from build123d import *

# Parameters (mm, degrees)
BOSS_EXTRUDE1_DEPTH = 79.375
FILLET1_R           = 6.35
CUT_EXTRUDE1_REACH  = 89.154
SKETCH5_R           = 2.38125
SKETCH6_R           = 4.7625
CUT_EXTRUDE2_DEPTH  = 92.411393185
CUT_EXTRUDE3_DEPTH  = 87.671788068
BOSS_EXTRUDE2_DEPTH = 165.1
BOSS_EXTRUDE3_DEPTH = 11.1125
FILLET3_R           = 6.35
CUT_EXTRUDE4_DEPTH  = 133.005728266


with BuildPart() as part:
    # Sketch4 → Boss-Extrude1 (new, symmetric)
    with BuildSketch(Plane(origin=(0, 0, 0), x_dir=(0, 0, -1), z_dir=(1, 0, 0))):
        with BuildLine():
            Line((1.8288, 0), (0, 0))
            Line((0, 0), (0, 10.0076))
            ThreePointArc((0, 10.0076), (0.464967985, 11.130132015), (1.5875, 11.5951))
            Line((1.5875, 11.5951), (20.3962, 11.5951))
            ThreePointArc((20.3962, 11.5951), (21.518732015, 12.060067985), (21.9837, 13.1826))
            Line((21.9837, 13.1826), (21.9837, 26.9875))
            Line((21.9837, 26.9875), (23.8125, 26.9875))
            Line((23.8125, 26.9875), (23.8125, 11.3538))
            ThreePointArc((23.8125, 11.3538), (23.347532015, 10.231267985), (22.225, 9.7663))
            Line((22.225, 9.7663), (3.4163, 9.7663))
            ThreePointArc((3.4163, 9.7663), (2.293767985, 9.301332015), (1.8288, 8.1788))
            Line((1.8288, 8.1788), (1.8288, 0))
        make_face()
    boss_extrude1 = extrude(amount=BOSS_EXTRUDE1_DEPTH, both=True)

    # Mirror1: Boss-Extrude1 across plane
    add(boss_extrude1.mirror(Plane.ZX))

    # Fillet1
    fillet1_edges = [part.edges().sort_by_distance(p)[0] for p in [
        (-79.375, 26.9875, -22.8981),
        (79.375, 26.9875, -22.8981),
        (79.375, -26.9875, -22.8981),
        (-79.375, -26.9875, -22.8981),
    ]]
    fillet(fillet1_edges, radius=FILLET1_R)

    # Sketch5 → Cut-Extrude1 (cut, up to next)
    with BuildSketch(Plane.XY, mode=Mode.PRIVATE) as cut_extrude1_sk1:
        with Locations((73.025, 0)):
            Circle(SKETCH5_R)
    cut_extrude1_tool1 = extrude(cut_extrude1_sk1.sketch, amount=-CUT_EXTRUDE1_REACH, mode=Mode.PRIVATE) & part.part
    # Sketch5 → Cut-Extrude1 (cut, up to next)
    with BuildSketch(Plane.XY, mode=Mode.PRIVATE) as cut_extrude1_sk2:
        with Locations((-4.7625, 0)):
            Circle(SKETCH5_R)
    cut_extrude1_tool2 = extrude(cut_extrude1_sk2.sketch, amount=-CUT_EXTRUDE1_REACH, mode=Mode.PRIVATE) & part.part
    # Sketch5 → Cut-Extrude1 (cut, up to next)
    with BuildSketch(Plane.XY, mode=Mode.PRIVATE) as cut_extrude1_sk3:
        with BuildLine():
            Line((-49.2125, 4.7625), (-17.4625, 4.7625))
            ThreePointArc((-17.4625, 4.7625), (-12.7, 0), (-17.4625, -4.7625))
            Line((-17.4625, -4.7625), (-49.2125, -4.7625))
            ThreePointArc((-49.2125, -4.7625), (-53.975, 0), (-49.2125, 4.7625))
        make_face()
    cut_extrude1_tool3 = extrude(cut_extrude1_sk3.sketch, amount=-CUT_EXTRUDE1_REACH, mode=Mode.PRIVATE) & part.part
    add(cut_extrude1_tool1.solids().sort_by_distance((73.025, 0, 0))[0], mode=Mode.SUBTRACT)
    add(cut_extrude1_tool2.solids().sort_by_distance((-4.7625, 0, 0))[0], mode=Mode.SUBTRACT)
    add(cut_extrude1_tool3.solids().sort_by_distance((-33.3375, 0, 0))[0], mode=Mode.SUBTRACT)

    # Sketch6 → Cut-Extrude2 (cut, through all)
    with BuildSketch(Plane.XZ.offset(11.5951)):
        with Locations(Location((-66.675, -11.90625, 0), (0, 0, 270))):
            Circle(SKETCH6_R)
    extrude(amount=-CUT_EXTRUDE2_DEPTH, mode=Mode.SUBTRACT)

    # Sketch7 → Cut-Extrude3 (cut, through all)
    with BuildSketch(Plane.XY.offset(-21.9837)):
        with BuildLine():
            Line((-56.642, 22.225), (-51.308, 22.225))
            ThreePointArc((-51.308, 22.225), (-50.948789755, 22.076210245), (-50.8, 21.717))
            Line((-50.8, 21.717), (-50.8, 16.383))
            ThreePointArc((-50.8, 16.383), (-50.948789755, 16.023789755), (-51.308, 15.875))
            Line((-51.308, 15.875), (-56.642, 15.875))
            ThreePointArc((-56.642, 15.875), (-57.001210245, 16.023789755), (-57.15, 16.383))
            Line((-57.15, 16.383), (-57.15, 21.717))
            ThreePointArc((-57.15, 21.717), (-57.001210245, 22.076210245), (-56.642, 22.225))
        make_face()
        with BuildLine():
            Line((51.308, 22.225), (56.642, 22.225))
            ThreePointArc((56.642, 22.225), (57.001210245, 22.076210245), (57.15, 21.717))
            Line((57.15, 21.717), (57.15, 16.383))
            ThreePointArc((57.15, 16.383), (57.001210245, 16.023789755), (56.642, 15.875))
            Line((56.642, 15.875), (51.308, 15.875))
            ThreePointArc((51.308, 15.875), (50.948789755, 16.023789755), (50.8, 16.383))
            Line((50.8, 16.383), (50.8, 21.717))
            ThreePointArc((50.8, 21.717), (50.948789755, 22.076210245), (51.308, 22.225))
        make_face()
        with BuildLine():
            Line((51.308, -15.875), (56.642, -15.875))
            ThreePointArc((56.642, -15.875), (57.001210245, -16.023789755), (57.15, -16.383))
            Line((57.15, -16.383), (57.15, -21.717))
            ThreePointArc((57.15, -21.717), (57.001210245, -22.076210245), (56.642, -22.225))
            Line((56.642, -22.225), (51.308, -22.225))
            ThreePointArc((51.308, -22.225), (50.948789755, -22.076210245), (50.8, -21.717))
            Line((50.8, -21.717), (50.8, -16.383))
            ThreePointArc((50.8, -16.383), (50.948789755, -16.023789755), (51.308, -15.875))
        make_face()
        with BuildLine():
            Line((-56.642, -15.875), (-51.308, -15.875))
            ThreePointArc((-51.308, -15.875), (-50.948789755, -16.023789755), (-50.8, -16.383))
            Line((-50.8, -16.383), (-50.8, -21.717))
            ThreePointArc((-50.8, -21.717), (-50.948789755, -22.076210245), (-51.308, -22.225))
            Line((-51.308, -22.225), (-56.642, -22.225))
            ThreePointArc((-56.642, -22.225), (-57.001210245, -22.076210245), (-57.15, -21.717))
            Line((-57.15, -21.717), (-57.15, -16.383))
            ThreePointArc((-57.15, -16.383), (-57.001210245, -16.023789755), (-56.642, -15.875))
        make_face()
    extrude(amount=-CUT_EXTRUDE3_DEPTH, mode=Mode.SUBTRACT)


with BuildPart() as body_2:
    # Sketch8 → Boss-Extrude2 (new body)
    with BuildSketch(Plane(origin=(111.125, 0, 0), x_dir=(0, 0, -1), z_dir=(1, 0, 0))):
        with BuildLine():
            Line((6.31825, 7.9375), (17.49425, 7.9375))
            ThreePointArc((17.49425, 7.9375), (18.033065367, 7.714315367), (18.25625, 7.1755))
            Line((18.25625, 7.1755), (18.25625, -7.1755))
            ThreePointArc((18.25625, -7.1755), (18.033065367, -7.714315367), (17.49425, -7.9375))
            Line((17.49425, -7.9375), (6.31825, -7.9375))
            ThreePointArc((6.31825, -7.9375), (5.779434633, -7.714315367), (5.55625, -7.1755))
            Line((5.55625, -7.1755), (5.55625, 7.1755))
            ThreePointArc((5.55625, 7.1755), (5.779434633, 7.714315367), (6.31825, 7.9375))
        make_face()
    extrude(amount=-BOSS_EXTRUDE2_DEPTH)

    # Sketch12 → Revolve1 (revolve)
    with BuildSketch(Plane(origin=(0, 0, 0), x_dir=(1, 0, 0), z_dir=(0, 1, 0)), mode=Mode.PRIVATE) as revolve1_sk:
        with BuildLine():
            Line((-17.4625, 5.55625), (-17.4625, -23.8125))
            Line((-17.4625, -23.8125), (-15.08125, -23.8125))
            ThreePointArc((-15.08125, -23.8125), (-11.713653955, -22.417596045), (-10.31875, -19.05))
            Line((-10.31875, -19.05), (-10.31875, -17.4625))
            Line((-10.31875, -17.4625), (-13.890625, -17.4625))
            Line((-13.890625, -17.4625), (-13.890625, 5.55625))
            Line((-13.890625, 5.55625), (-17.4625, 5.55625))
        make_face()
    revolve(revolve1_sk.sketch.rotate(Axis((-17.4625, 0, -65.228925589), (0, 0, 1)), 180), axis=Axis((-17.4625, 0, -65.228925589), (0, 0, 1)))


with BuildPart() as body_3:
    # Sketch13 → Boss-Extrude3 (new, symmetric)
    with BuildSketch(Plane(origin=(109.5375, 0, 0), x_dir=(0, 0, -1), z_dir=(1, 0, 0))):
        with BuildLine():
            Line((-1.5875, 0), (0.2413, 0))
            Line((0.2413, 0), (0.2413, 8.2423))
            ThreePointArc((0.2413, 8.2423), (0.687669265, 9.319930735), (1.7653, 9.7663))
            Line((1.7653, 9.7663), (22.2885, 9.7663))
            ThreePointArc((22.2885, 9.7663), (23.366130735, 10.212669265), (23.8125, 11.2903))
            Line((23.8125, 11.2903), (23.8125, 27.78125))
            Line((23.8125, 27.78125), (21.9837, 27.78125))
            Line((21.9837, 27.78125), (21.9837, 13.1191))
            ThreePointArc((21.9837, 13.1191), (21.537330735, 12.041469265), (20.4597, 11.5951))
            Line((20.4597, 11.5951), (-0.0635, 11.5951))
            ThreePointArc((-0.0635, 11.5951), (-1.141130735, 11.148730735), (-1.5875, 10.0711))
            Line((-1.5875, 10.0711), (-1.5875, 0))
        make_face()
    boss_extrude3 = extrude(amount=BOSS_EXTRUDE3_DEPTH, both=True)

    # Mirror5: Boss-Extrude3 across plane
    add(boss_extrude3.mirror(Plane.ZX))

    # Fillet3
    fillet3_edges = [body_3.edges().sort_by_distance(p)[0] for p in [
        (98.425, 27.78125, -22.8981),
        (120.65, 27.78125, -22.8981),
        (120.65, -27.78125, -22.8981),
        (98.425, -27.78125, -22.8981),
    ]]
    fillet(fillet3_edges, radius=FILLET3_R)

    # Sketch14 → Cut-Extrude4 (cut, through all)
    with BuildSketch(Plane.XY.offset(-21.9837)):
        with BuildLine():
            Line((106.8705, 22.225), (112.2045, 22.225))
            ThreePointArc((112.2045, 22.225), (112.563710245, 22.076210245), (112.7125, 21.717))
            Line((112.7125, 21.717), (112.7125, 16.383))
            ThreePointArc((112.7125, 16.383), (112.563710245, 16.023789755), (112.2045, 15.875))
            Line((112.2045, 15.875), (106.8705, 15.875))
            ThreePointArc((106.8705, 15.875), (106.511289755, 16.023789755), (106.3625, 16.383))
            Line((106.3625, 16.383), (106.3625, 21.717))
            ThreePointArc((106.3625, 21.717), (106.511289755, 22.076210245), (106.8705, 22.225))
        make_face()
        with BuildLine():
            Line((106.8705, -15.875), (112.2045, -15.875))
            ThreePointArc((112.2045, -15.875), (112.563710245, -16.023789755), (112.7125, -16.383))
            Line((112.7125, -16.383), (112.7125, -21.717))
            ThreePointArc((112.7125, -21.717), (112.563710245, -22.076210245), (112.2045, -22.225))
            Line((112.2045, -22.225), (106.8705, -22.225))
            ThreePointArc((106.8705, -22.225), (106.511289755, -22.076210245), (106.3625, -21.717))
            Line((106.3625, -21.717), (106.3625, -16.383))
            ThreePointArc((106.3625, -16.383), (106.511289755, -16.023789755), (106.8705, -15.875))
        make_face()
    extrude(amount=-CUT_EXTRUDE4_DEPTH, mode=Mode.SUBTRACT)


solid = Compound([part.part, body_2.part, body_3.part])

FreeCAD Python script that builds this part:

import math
import FreeCAD as App
import Part
import Sketcher

V = App.Vector
Q = App.Units.Quantity


def edges_at(feature, points):
    """Names of the edges that pass closest to the given points."""
    edges = feature.Shape.Edges
    near = lambda p: min(range(len(edges)), key=lambda i: edges[i].distToShape(Part.Vertex(*p))[0])
    return sorted({f"Edge{near(p) + 1}" for p in points})

doc = App.newDocument("Part")
params = doc.addObject("Spreadsheet::Sheet", "Params")
for row, (alias, value) in enumerate([
    ("sketch1_radius", "0.0625 in"),
    ("sketch1_width", "0.322 in"),
    ("sketch1_width2", "0.394 in"),
    ("sketch1_height", "0.072 in"),
    ("pad1_length", "6.25 in"),
    ("fillet_radius", "0.25 in"),
    ("sketch2_diameter", "0.1875 in"),
    ("sketch3_diameter", "0.1875 in"),
    ("sketch4_radius", "0.1875 in"),
    ("sketch4_width", "1.25 in"),
    ("sketch5_diameter", "0.375 in"),
    ("sketch6_radius", "0.02 in"),
    ("sketch6_width", "0.21 in"),
    ("sketch7_radius", "0.03 in"),
    ("sketch7_height", "0.44 in"),
    ("sketch7_width", "0.565 in"),
    ("pad2_length", "6.5 in"),
    ("sketch8_radius", "0.1875 in"),
    ("sketch8_width", "0.09375 in"),
    ("sketch8_height", "1.15625 in"),
    ("sketch8_height2", "0.0625 in"),
    ("revolution_angle", "360 deg"),
    ("sketch9_radius", "0.06 in"),
    ("sketch9_height", "0.072 in"),
    ("sketch9_height2", "0.808 in"),
    ("pad3_length", "0.875 in"),
    ("fillet2_radius", "0.25 in"),
    ("sketch10_radius", "0.02 in"),
    ("sketch10_width", "0.21 in"),
], start=1):
    params.set(f"A{row}", alias)
    params.set(f"B{row}", "=" + value)
    params.setAlias(f"B{row}", alias)

body = doc.addObject("PartDesign::Body", "Body")

sketch1 = body.newObject("Sketcher::SketchObject", "Sketch")
sketch1.AttachmentSupport = (doc.getObject("YZ_Plane"), [""])
sketch1.MapMode = "FlatFace"
sketch1.addGeometry([
    Part.LineSegment(V(0, 0, 0), V(0, -1.8, 0)),
    Part.LineSegment(V(0, -1.8, 0), V(8.2, -1.8, 0)),
    Part.ArcOfCircle(Part.Circle(V(8.2, -3.4, 0), V(0, 0, 1), 1.6), math.radians(0), math.radians(90)),
    Part.LineSegment(V(9.8, -3.4, 0), V(9.8, -22.2, 0)),
    Part.ArcOfCircle(Part.Circle(V(11.4, -22.2, 0), V(0, 0, 1), 1.6), math.radians(180), math.radians(270)),
    Part.LineSegment(V(11.4, -23.8, 0), V(27, -23.8, 0)),
    Part.LineSegment(V(27, -23.8, 0), V(27, -22, 0)),
    Part.LineSegment(V(27, -22, 0), V(13.2, -22, 0)),
    Part.ArcOfCircle(Part.Circle(V(13.2, -20.4, 0), V(0, 0, 1), 1.6), math.radians(180), math.radians(270)),
    Part.LineSegment(V(11.6, -20.4, 0), V(11.6, -1.6, 0)),
    Part.ArcOfCircle(Part.Circle(V(10, -1.6, 0), V(0, 0, 1), 1.6), math.radians(0), math.radians(90)),
    Part.LineSegment(V(10, 0, 0), V(0, 0, 0)),
], False)
sketch1.addConstraint([
    Sketcher.Constraint("Coincident", 0, 2, 1, 1),
    Sketcher.Constraint("Tangent", 1, 2, 2, 2),
    Sketcher.Constraint("Tangent", 2, 1, 3, 1),
    Sketcher.Constraint("Tangent", 3, 2, 4, 1),
    Sketcher.Constraint("Tangent", 4, 2, 5, 1),
    Sketcher.Constraint("Coincident", 5, 2, 6, 1),
    Sketcher.Constraint("Coincident", 6, 2, 7, 1),
    Sketcher.Constraint("Tangent", 7, 2, 8, 2),
    Sketcher.Constraint("Tangent", 8, 1, 9, 1),
    Sketcher.Constraint("Tangent", 9, 2, 10, 1),
    Sketcher.Constraint("Tangent", 10, 2, 11, 1),
    Sketcher.Constraint("Coincident", 11, 2, 0, 1),
    Sketcher.Constraint("Vertical", 0),
    Sketcher.Constraint("Horizontal", 1),
    Sketcher.Constraint("Vertical", 3),
    Sketcher.Constraint("Horizontal", 5),
    Sketcher.Constraint("Vertical", 6),
    Sketcher.Constraint("Horizontal", 7),
    Sketcher.Constraint("Vertical", 9),
    Sketcher.Constraint("Horizontal", 11),
    Sketcher.Constraint("Coincident", 11, 2, -1, 1),
    Sketcher.Constraint("Equal", 2, 4),
    Sketcher.Constraint("Equal", 4, 8),
    Sketcher.Constraint("Equal", 8, 10),
    Sketcher.Constraint("Equal", 0, 6),
    Sketcher.Constraint("Radius", 2, Q("0.0625 in")),
    Sketcher.Constraint("DistanceX", 1, 1, 1, 2, Q("0.322 in")),
    Sketcher.Constraint("DistanceX", 11, 2, 11, 1, Q("0.394 in")),
    Sketcher.Constraint("DistanceY", 0, 2, 0, 1, Q("0.072 in")),
    Sketcher.Constraint("DistanceX", 5, 1, 5, 2, Q("0.6155 in")),
    Sketcher.Constraint("DistanceY", 3, 2, 3, 1, Q("0.7405 in")),
])
sketch1.setExpression("Constraints[25]", "Params.sketch1_radius")
sketch1.setExpression("Constraints[26]", "Params.sketch1_width")
sketch1.setExpression("Constraints[27]", "Params.sketch1_width2")
sketch1.setExpression("Constraints[28]", "Params.sketch1_height")
pad1 = body.newObject("PartDesign::Pad", "Pad")
pad1.Profile = sketch1
pad1.setExpression("Length", "Params.pad1_length")
pad1.Midplane = True
doc.recompute()

mirrored = body.newObject("PartDesign::Mirrored", "Mirrored")
mirrored.Originals = [pad1]
mirrored.MirrorPlane = (doc.getObject("XZ_Plane"), [""])
body.Tip = mirrored
doc.recompute()

fillet = body.newObject("PartDesign::Fillet", "Fillet")
fillet.Base = (mirrored, edges_at(mirrored, [
    (-79.375, 26.988, -22.898),
    (79.375, 26.988, -22.898),
    (79.375, -26.988, -22.898),
    (-79.375, -26.988, -22.898),
]))
fillet.setExpression("Radius", "Params.fillet_radius")

sketch2 = body.newObject("Sketcher::SketchObject", "Sketch001")
sketch2.AttachmentSupport = (doc.getObject("XY_Plane"), [""])
sketch2.MapMode = "FlatFace"
sketch2.addGeometry(Part.Circle(V(73, 0, 0), V(0, 0, 1), 2.4), False)
sketch2.addConstraint([
    Sketcher.Constraint("PointOnObject", 0, 3, -1),
    Sketcher.Constraint("Diameter", 0, Q("0.1875 in")),
    Sketcher.Constraint("DistanceX", -1, 1, 0, 3, Q("2.875 in")),
])
sketch2.setExpression("Constraints[1]", "Params.sketch2_diameter")
pocket1 = body.newObject("PartDesign::Pocket", "Pocket")
pocket1.Profile = sketch2
pocket1.Type = "UpToFirst"

sketch3 = body.newObject("Sketcher::SketchObject", "Sketch002")
sketch3.AttachmentSupport = (doc.getObject("XY_Plane"), [""])
sketch3.MapMode = "FlatFace"
sketch3.addGeometry(Part.Circle(V(-4.8, 0, 0), V(0, 0, 1), 2.4), False)
sketch3.addConstraint([
    Sketcher.Constraint("PointOnObject", 0, 3, -1),
    Sketcher.Constraint("Diameter", 0, Q("0.1875 in")),
    Sketcher.Constraint("DistanceX", 0, 3, -1, 1, Q("0.1875 in")),
])
sketch3.setExpression("Constraints[1]", "Params.sketch3_diameter")
pocket2 = body.newObject("PartDesign::Pocket", "Pocket001")
pocket2.Profile = sketch3
pocket2.Type = "UpToFirst"

sketch4 = body.newObject("Sketcher::SketchObject", "Sketch003")
sketch4.AttachmentSupport = (doc.getObject("XY_Plane"), [""])
sketch4.MapMode = "FlatFace"
sketch4.addGeometry([
    Part.LineSegment(V(-17.5, 4.8, 0), V(-49.2, 4.8, 0)),
    Part.ArcOfCircle(Part.Circle(V(-49.2, 0, 0), V(0, 0, 1), 4.8), math.radians(90), math.radians(270)),
    Part.LineSegment(V(-49.2, -4.8, 0), V(-17.5, -4.8, 0)),
    Part.ArcOfCircle(Part.Circle(V(-17.5, 0, 0), V(0, 0, 1), 4.8), math.radians(-90), math.radians(90)),
], False)
sketch4.addConstraint([
    Sketcher.Constraint("Tangent", 0, 2, 1, 1),
    Sketcher.Constraint("Tangent", 1, 2, 2, 1),
    Sketcher.Constraint("Tangent", 2, 2, 3, 1),
    Sketcher.Constraint("Tangent", 3, 2, 0, 1),
    Sketcher.Constraint("Horizontal", 0),
    Sketcher.Constraint("Horizontal", 2),
    Sketcher.Constraint("PointOnObject", 1, 3, -1),
    Sketcher.Constraint("Radius", 1, Q("0.1875 in")),
    Sketcher.Constraint("DistanceX", 0, 2, 0, 1, Q("1.25 in")),
    Sketcher.Constraint("DistanceX", 1, 3, -1, 1, Q("1.9375 in")),
])
sketch4.setExpression("Constraints[7]", "Params.sketch4_radius")
sketch4.setExpression("Constraints[8]", "Params.sketch4_width")
pocket3 = body.newObject("PartDesign::Pocket", "Pocket002")
pocket3.Profile = sketch4
pocket3.Type = "UpToFirst"

sketch5 = body.newObject("Sketcher::SketchObject", "Sketch004")
sketch5.AttachmentSupport = (doc.getObject("XZ_Plane"), [""])
sketch5.MapMode = "FlatFace"
sketch5.AttachmentOffset = App.Placement(V(0, 0, 0.4565 * 25.4), App.Rotation())
sketch5.addGeometry(Part.Circle(V(-66.7, -11.9, 0), V(0, 0, 1), 4.8), False)
sketch5.addConstraint([
    Sketcher.Constraint("Diameter", 0, Q("0.375 in")),
    Sketcher.Constraint("DistanceX", 0, 3, -1, 1, Q("2.625 in")),
    Sketcher.Constraint("DistanceY", 0, 3, -1, 1, Q("0.46875 in")),
])
sketch5.setExpression("Constraints[0]", "Params.sketch5_diameter")
pocket4 = body.newObject("PartDesign::Pocket", "Pocket003")
pocket4.Profile = sketch5
pocket4.Type = "ThroughAll"

sketch6 = body.newObject("Sketcher::SketchObject", "Sketch005")
sketch6.AttachmentSupport = (doc.getObject("XY_Plane"), [""])
sketch6.MapMode = "FlatFace"
sketch6.AttachmentOffset = App.Placement(V(0, 0, -0.8655 * 25.4), App.Rotation())
sketch6.addGeometry([
    Part.LineSegment(V(-51.3, 22.2, 0), V(-56.6, 22.2, 0)),
    Part.ArcOfCircle(Part.Circle(V(-56.6, 21.7, 0), V(0, 0, 1), 0.5), math.radians(90), math.radians(180)),
    Part.LineSegment(V(-57.1, 21.7, 0), V(-57.1, 16.4, 0)),
    Part.ArcOfCircle(Part.Circle(V(-56.6, 16.4, 0), V(0, 0, 1), 0.5), math.radians(180), math.radians(270)),
    Part.LineSegment(V(-56.6, 15.9, 0), V(-51.3, 15.9, 0)),
    Part.ArcOfCircle(Part.Circle(V(-51.3, 16.4, 0), V(0, 0, 1), 0.5), math.radians(-90), math.radians(0)),
    Part.LineSegment(V(-50.8, 16.4, 0), V(-50.8, 21.7, 0)),
    Part.ArcOfCircle(Part.Circle(V(-51.3, 21.7, 0), V(0, 0, 1), 0.5), math.radians(0), math.radians(90)),
    Part.LineSegment(V(56.6, 22.2, 0), V(51.3, 22.2, 0)),
    Part.ArcOfCircle(Part.Circle(V(51.3, 21.7, 0), V(0, 0, 1), 0.5), math.radians(90), math.radians(180)),
    Part.LineSegment(V(50.8, 21.7, 0), V(50.8, 16.4, 0)),
    Part.ArcOfCircle(Part.Circle(V(51.3, 16.4, 0), V(0, 0, 1), 0.5), math.radians(180), math.radians(270)),
    Part.LineSegment(V(51.3, 15.9, 0), V(56.6, 15.9, 0)),
    Part.ArcOfCircle(Part.Circle(V(56.6, 16.4, 0), V(0, 0, 1), 0.5), math.radians(-90), math.radians(0)),
    Part.LineSegment(V(57.1, 16.4, 0), V(57.1, 21.7, 0)),
    Part.ArcOfCircle(Part.Circle(V(56.6, 21.7, 0), V(0, 0, 1), 0.5), math.radians(0), math.radians(90)),
    Part.LineSegment(V(56.6, -15.9, 0), V(51.3, -15.9, 0)),
    Part.ArcOfCircle(Part.Circle(V(51.3, -16.4, 0), V(0, 0, 1), 0.5), math.radians(90), math.radians(180)),
    Part.LineSegment(V(50.8, -16.4, 0), V(50.8, -21.7, 0)),
    Part.ArcOfCircle(Part.Circle(V(51.3, -21.7, 0), V(0, 0, 1), 0.5), math.radians(180), math.radians(270)),
    Part.LineSegment(V(51.3, -22.2, 0), V(56.6, -22.2, 0)),
    Part.ArcOfCircle(Part.Circle(V(56.6, -21.7, 0), V(0, 0, 1), 0.5), math.radians(-90), math.radians(0)),
    Part.LineSegment(V(57.1, -21.7, 0), V(57.1, -16.4, 0)),
    Part.ArcOfCircle(Part.Circle(V(56.6, -16.4, 0), V(0, 0, 1), 0.5), math.radians(0), math.radians(90)),
    Part.LineSegment(V(-51.3, -15.9, 0), V(-56.6, -15.9, 0)),
    Part.ArcOfCircle(Part.Circle(V(-56.6, -16.4, 0), V(0, 0, 1), 0.5), math.radians(90), math.radians(180)),
    Part.LineSegment(V(-57.1, -16.4, 0), V(-57.1, -21.7, 0)),
    Part.ArcOfCircle(Part.Circle(V(-56.6, -21.7, 0), V(0, 0, 1), 0.5), math.radians(180), math.radians(270)),
    Part.LineSegment(V(-56.6, -22.2, 0), V(-51.3, -22.2, 0)),
    Part.ArcOfCircle(Part.Circle(V(-51.3, -21.7, 0), V(0, 0, 1), 0.5), math.radians(-90), math.radians(0)),
    Part.LineSegment(V(-50.8, -21.7, 0), V(-50.8, -16.4, 0)),
    Part.ArcOfCircle(Part.Circle(V(-51.3, -16.4, 0), V(0, 0, 1), 0.5), math.radians(0), math.radians(90)),
], False)
sketch6.addConstraint([
    Sketcher.Constraint("Tangent", 0, 2, 1, 1),
    Sketcher.Constraint("Tangent", 1, 2, 2, 1),
    Sketcher.Constraint("Tangent", 2, 2, 3, 1),
    Sketcher.Constraint("Tangent", 3, 2, 4, 1),
    Sketcher.Constraint("Tangent", 4, 2, 5, 1),
    Sketcher.Constraint("Tangent", 5, 2, 6, 1),
    Sketcher.Constraint("Tangent", 6, 2, 7, 1),
    Sketcher.Constraint("Tangent", 7, 2, 0, 1),
    Sketcher.Constraint("Tangent", 8, 2, 9, 1),
    Sketcher.Constraint("Tangent", 9, 2, 10, 1),
    Sketcher.Constraint("Tangent", 10, 2, 11, 1),
    Sketcher.Constraint("Tangent", 11, 2, 12, 1),
    Sketcher.Constraint("Tangent", 12, 2, 13, 1),
    Sketcher.Constraint("Tangent", 13, 2, 14, 1),
    Sketcher.Constraint("Tangent", 14, 2, 15, 1),
    Sketcher.Constraint("Tangent", 15, 2, 8, 1),
    Sketcher.Constraint("Tangent", 16, 2, 17, 1),
    Sketcher.Constraint("Tangent", 17, 2, 18, 1),
    Sketcher.Constraint("Tangent", 18, 2, 19, 1),
    Sketcher.Constraint("Tangent", 19, 2, 20, 1),
    Sketcher.Constraint("Tangent", 20, 2, 21, 1),
    Sketcher.Constraint("Tangent", 21, 2, 22, 1),
    Sketcher.Constraint("Tangent", 22, 2, 23, 1),
    Sketcher.Constraint("Tangent", 23, 2, 16, 1),
    Sketcher.Constraint("Tangent", 24, 2, 25, 1),
    Sketcher.Constraint("Tangent", 25, 2, 26, 1),
    Sketcher.Constraint("Tangent", 26, 2, 27, 1),
    Sketcher.Constraint("Tangent", 27, 2, 28, 1),
    Sketcher.Constraint("Tangent", 28, 2, 29, 1),
    Sketcher.Constraint("Tangent", 29, 2, 30, 1),
    Sketcher.Constraint("Tangent", 30, 2, 31, 1),
    Sketcher.Constraint("Tangent", 31, 2, 24, 1),
    Sketcher.Constraint("Horizontal", 0),
    Sketcher.Constraint("Vertical", 2),
    Sketcher.Constraint("Horizontal", 4),
    Sketcher.Constraint("Vertical", 6),
    Sketcher.Constraint("Horizontal", 8),
    Sketcher.Constraint("Vertical", 10),
    Sketcher.Constraint("Horizontal", 12),
    Sketcher.Constraint("Vertical", 14),
    Sketcher.Constraint("Horizontal", 16),
    Sketcher.Constraint("Vertical", 18),
    Sketcher.Constraint("Horizontal", 20),
    Sketcher.Constraint("Vertical", 22),
    Sketcher.Constraint("Horizontal", 24),
    Sketcher.Constraint("Vertical", 26),
    Sketcher.Constraint("Horizontal", 28),
    Sketcher.Constraint("Vertical", 30),
    Sketcher.Constraint("Equal", 1, 3),
    Sketcher.Constraint("Equal", 3, 5),
    Sketcher.Constraint("Equal", 5, 7),
    Sketcher.Constraint("Equal", 7, 9),
    Sketcher.Constraint("Equal", 9, 11),
    Sketcher.Constraint("Equal", 11, 13),
    Sketcher.Constraint("Equal", 13, 15),
    Sketcher.Constraint("Equal", 15, 17),
    Sketcher.Constraint("Equal", 17, 19),
    Sketcher.Constraint("Equal", 19, 21),
    Sketcher.Constraint("Equal", 21, 23),
    Sketcher.Constraint("Equal", 23, 25),
    Sketcher.Constraint("Equal", 25, 27),
    Sketcher.Constraint("Equal", 27, 29),
    Sketcher.Constraint("Equal", 29, 31),
    Sketcher.Constraint("Symmetric", 5, 3, 17, 3, -1, 1),
    Sketcher.Constraint("Symmetric", 1, 3, 21, 3, -1, 1),
    Sketcher.Constraint("Symmetric", 13, 3, 25, 3, -1, 1),
    Sketcher.Constraint("Symmetric", 9, 3, 29, 3, -1, 1),
    Sketcher.Constraint("Symmetric", 7, 3, 9, 3, -2),
    Sketcher.Constraint("Symmetric", 3, 3, 13, 3, -2),
    Sketcher.Constraint("Equal", 28, 2),
    Sketcher.Constraint("Radius", 1, Q("0.02 in")),
    Sketcher.Constraint("DistanceX", 5, 2, -1, 1, Q("2 in")),
    Sketcher.Constraint("DistanceX", 0, 2, 0, 1, Q("0.21 in")),
    Sketcher.Constraint("DistanceY", 17, 3, 9, 3, Q("1.5 in")),
])
sketch6.setExpression("Constraints[70]", "Params.sketch6_radius")
sketch6.setExpression("Constraints[72]", "Params.sketch6_width")
pocket5 = body.newObject("PartDesign::Pocket", "Pocket004")
pocket5.Profile = sketch6
pocket5.Type = "ThroughAll"
body2 = doc.addObject("PartDesign::Body", "Body001")

sketch7 = body2.newObject("Sketcher::SketchObject", "Sketch006")
sketch7.AttachmentSupport = (doc.getObject("YZ_Plane001"), [""])
sketch7.MapMode = "FlatFace"
sketch7.AttachmentOffset = App.Placement(V(0, 0, 4.375 * 25.4), App.Rotation())
sketch7.addGeometry([
    Part.LineSegment(V(7.9, -17.5, 0), V(7.9, -6.3, 0)),
    Part.ArcOfCircle(Part.Circle(V(7.2, -6.3, 0), V(0, 0, 1), 0.8), math.radians(0), math.radians(90)),
    Part.LineSegment(V(7.2, -5.6, 0), V(-7.2, -5.6, 0)),
    Part.ArcOfCircle(Part.Circle(V(-7.2, -6.3, 0), V(0, 0, 1), 0.8), math.radians(90), math.radians(180)),
    Part.LineSegment(V(-7.9, -6.3, 0), V(-7.9, -17.5, 0)),
    Part.ArcOfCircle(Part.Circle(V(-7.2, -17.5, 0), V(0, 0, 1), 0.8), math.radians(-180), math.radians(-90)),
    Part.LineSegment(V(-7.2, -18.3, 0), V(7.2, -18.3, 0)),
    Part.ArcOfCircle(Part.Circle(V(7.2, -17.5, 0), V(0, 0, 1), 0.8), math.radians(-90), math.radians(0)),
], False)
sketch7.addConstraint([
    Sketcher.Constraint("Tangent", 0, 2, 1, 1),
    Sketcher.Constraint("Tangent", 1, 2, 2, 1),
    Sketcher.Constraint("Tangent", 2, 2, 3, 1),
    Sketcher.Constraint("Tangent", 3, 2, 4, 1),
    Sketcher.Constraint("Tangent", 4, 2, 5, 1),
    Sketcher.Constraint("Tangent", 5, 2, 6, 1),
    Sketcher.Constraint("Tangent", 6, 2, 7, 1),
    Sketcher.Constraint("Tangent", 7, 2, 0, 1),
    Sketcher.Constraint("Vertical", 0),
    Sketcher.Constraint("Horizontal", 2),
    Sketcher.Constraint("Vertical", 4),
    Sketcher.Constraint("Horizontal", 6),
    Sketcher.Constraint("Equal", 1, 3),
    Sketcher.Constraint("Equal", 3, 5),
    Sketcher.Constraint("Equal", 5, 7),
    Sketcher.Constraint("Radius", 1, Q("0.03 in")),
    Sketcher.Constraint("DistanceY", 0, 1, 0, 2, Q("0.44 in")),
    Sketcher.Constraint("DistanceX", 2, 2, 2, 1, Q("0.565 in")),
    Sketcher.Constraint("DistanceX", -1, 1, 0, 2, Q("0.3125 in")),
    Sketcher.Constraint("DistanceY", 1, 2, -1, 1, Q("0.21875 in")),
])
sketch7.setExpression("Constraints[15]", "Params.sketch7_radius")
sketch7.setExpression("Constraints[16]", "Params.sketch7_height")
sketch7.setExpression("Constraints[17]", "Params.sketch7_width")
pad2 = body2.newObject("PartDesign::Pad", "Pad001")
pad2.Profile = sketch7
pad2.setExpression("Length", "Params.pad2_length")
pad2.Reversed = True

sketch8 = body2.newObject("Sketcher::SketchObject", "Sketch007")
sketch8.AttachmentSupport = (doc.getObject("XZ_Plane001"), [""])
sketch8.MapMode = "FlatFace"
sketch8.addGeometry([
    Part.LineSegment(V(-17.5, -5.6, 0), V(-17.5, 23.8, 0)),
    Part.LineSegment(V(-17.5, 23.8, 0), V(-15.1, 23.8, 0)),
    Part.ArcOfCircle(Part.Circle(V(-15.1, 19, 0), V(0, 0, 1), 4.8), math.radians(0), math.radians(90)),
    Part.LineSegment(V(-10.3, 19.1, 0), V(-10.3, 17.5, 0)),
    Part.LineSegment(V(-10.3, 17.5, 0), V(-13.9, 17.5, 0)),
    Part.LineSegment(V(-13.9, 17.5, 0), V(-13.9, -5.6, 0)),
    Part.LineSegment(V(-13.9, -5.6, 0), V(-17.5, -5.6, 0)),
], False)
sketch8.addGeometry(Part.LineSegment(V(-17.5, -5.6, 0), V(-17.5, 23.8, 0)), True)
sketch8.addConstraint([
    Sketcher.Constraint("Coincident", 0, 2, 1, 1),
    Sketcher.Constraint("Tangent", 1, 2, 2, 2),
    Sketcher.Constraint("Tangent", 2, 1, 3, 1),
    Sketcher.Constraint("Coincident", 3, 2, 4, 1),
    Sketcher.Constraint("Coincident", 4, 2, 5, 1),
    Sketcher.Constraint("Coincident", 5, 2, 6, 1),
    Sketcher.Constraint("Coincident", 6, 2, 0, 1),
    Sketcher.Constraint("Vertical", 0),
    Sketcher.Constraint("Horizontal", 1),
    Sketcher.Constraint("Vertical", 3),
    Sketcher.Constraint("Horizontal", 4),
    Sketcher.Constraint("Vertical", 5),
    Sketcher.Constraint("Horizontal", 6),
    Sketcher.Constraint("Vertical", 7),
    Sketcher.Constraint("Coincident", 7, 1, 6, 2),
    Sketcher.Constraint("Horizontal", 1, 2, 7, 2),
    Sketcher.Constraint("Equal", 4, 6),
    Sketcher.Constraint("Radius", 2, Q("0.1875 in")),
    Sketcher.Constraint("DistanceX", 1, 1, 1, 2, Q("0.09375 in")),
    Sketcher.Constraint("DistanceY", 0, 1, 0, 2, Q("1.15625 in")),
    Sketcher.Constraint("DistanceY", 3, 2, 3, 1, Q("0.0625 in")),
    Sketcher.Constraint("DistanceY", -1, 1, 2, 3, Q("0.75 in")),
    Sketcher.Constraint("DistanceX", 2, 3, -1, 1, Q("0.59375 in")),
])
sketch8.setExpression("Constraints[17]", "Params.sketch8_radius")
sketch8.setExpression("Constraints[18]", "Params.sketch8_width")
sketch8.setExpression("Constraints[19]", "Params.sketch8_height")
sketch8.setExpression("Constraints[20]", "Params.sketch8_height2")
revolution = body2.newObject("PartDesign::Revolution", "Revolution")
revolution.Profile = sketch8
revolution.ReferenceAxis = (sketch8, ["Axis0"])
revolution.setExpression("Angle", "Params.revolution_angle")
body3 = doc.addObject("PartDesign::Body", "Body002")

sketch9 = body3.newObject("Sketcher::SketchObject", "Sketch008")
sketch9.AttachmentSupport = (doc.getObject("YZ_Plane002"), [""])
sketch9.MapMode = "FlatFace"
sketch9.AttachmentOffset = App.Placement(V(0, 0, 4.3125 * 25.4), App.Rotation())
sketch9.addGeometry([
    Part.LineSegment(V(0, 1.6, 0), V(0, -0.2, 0)),
    Part.LineSegment(V(0, -0.2, 0), V(8.2, -0.2, 0)),
    Part.ArcOfCircle(Part.Circle(V(8.2, -1.8, 0), V(0, 0, 1), 1.5), math.radians(0), math.radians(90)),
    Part.LineSegment(V(9.8, -1.8, 0), V(9.8, -22.3, 0)),
    Part.ArcOfCircle(Part.Circle(V(11.3, -22.3, 0), V(0, 0, 1), 1.5), math.radians(180), math.radians(270)),
    Part.LineSegment(V(11.3, -23.8, 0), V(27.8, -23.8, 0)),
    Part.LineSegment(V(27.8, -23.8, 0), V(27.8, -22, 0)),
    Part.LineSegment(V(27.8, -22, 0), V(13.1, -22, 0)),
    Part.ArcOfCircle(Part.Circle(V(13.1, -20.5, 0), V(0, 0, 1), 1.5), math.radians(180), math.radians(270)),
    Part.LineSegment(V(11.6, -20.5, 0), V(11.6, 0.1, 0)),
    Part.ArcOfCircle(Part.Circle(V(10.1, 0.1, 0), V(0, 0, 1), 1.5), math.radians(0), math.radians(90)),
    Part.LineSegment(V(10.1, 1.6, 0), V(0, 1.6, 0)),
], False)
sketch9.addConstraint([
    Sketcher.Constraint("Coincident", 0, 2, 1, 1),
    Sketcher.Constraint("Tangent", 1, 2, 2, 2),
    Sketcher.Constraint("Tangent", 2, 1, 3, 1),
    Sketcher.Constraint("Tangent", 3, 2, 4, 1),
    Sketcher.Constraint("Tangent", 4, 2, 5, 1),
    Sketcher.Constraint("Coincident", 5, 2, 6, 1),
    Sketcher.Constraint("Coincident", 6, 2, 7, 1),
    Sketcher.Constraint("Tangent", 7, 2, 8, 2),
    Sketcher.Constraint("Tangent", 8, 1, 9, 1),
    Sketcher.Constraint("Tangent", 9, 2, 10, 1),
    Sketcher.Constraint("Tangent", 10, 2, 11, 1),
    Sketcher.Constraint("Coincident", 11, 2, 0, 1),
    Sketcher.Constraint("Vertical", 0),
    Sketcher.Constraint("Horizontal", 1),
    Sketcher.Constraint("Vertical", 3),
    Sketcher.Constraint("Horizontal", 5),
    Sketcher.Constraint("Vertical", 6),
    Sketcher.Constraint("Horizontal", 7),
    Sketcher.Constraint("Vertical", 9),
    Sketcher.Constraint("Horizontal", 11),
    Sketcher.Constraint("Equal", 2, 4),
    Sketcher.Constraint("Equal", 4, 8),
    Sketcher.Constraint("Equal", 8, 10),
    Sketcher.Constraint("PointOnObject", 0, 2, -2),
    Sketcher.Constraint("Equal", 0, 6),
    Sketcher.Constraint("Radius", 2, Q("0.06 in")),
    Sketcher.Constraint("DistanceY", 0, 2, 0, 1, Q("0.072 in")),
    Sketcher.Constraint("DistanceY", 3, 2, 3, 1, Q("0.808 in")),
    Sketcher.Constraint("DistanceX", 1, 1, 1, 2, Q("0.3245 in")),
    Sketcher.Constraint("DistanceX", 11, 2, 11, 1, Q("0.3965 in")),
    Sketcher.Constraint("DistanceY", 4, 2, -1, 1, Q("0.9375 in")),
    Sketcher.Constraint("DistanceX", -1, 1, 5, 2, Q("1.09375 in")),
])
sketch9.setExpression("Constraints[25]", "Params.sketch9_radius")
sketch9.setExpression("Constraints[26]", "Params.sketch9_height")
sketch9.setExpression("Constraints[27]", "Params.sketch9_height2")
pad3 = body3.newObject("PartDesign::Pad", "Pad002")
pad3.Profile = sketch9
pad3.setExpression("Length", "Params.pad3_length")
pad3.Midplane = True
doc.recompute()

mirrored2 = body3.newObject("PartDesign::Mirrored", "Mirrored001")
mirrored2.Originals = [pad3]
mirrored2.MirrorPlane = (doc.getObject("XZ_Plane002"), [""])
body3.Tip = mirrored2
doc.recompute()

fillet2 = body3.newObject("PartDesign::Fillet", "Fillet001")
fillet2.Base = (mirrored2, edges_at(mirrored2, [
    (98.425, 27.781, -22.898),
    (120.65, 27.781, -22.898),
    (120.65, -27.781, -22.898),
    (98.425, -27.781, -22.898),
]))
fillet2.setExpression("Radius", "Params.fillet2_radius")

sketch10 = body3.newObject("Sketcher::SketchObject", "Sketch009")
sketch10.AttachmentSupport = (doc.getObject("XY_Plane002"), [""])
sketch10.MapMode = "FlatFace"
sketch10.AttachmentOffset = App.Placement(V(0, 0, -0.8655 * 25.4), App.Rotation())
sketch10.addGeometry([
    Part.LineSegment(V(112.2, 22.2, 0), V(106.9, 22.2, 0)),
    Part.ArcOfCircle(Part.Circle(V(106.9, 21.7, 0), V(0, 0, 1), 0.5), math.radians(90), math.radians(180)),
    Part.LineSegment(V(106.4, 21.7, 0), V(106.4, 16.4, 0)),
    Part.ArcOfCircle(Part.Circle(V(106.9, 16.4, 0), V(0, 0, 1), 0.5), math.radians(180), math.radians(270)),
    Part.LineSegment(V(106.9, 15.9, 0), V(112.2, 15.9, 0)),
    Part.ArcOfCircle(Part.Circle(V(112.2, 16.4, 0), V(0, 0, 1), 0.5), math.radians(-90), math.radians(0)),
    Part.LineSegment(V(112.7, 16.4, 0), V(112.7, 21.7, 0)),
    Part.ArcOfCircle(Part.Circle(V(112.2, 21.7, 0), V(0, 0, 1), 0.5), math.radians(0), math.radians(90)),
    Part.LineSegment(V(112.2, -15.9, 0), V(106.9, -15.9, 0)),
    Part.ArcOfCircle(Part.Circle(V(106.9, -16.4, 0), V(0, 0, 1), 0.5), math.radians(90), math.radians(180)),
    Part.LineSegment(V(106.4, -16.4, 0), V(106.4, -21.7, 0)),
    Part.ArcOfCircle(Part.Circle(V(106.9, -21.7, 0), V(0, 0, 1), 0.5), math.radians(180), math.radians(270)),
    Part.LineSegment(V(106.9, -22.2, 0), V(112.2, -22.2, 0)),
    Part.ArcOfCircle(Part.Circle(V(112.2, -21.7, 0), V(0, 0, 1), 0.5), math.radians(-90), math.radians(0)),
    Part.LineSegment(V(112.7, -21.7, 0), V(112.7, -16.4, 0)),
    Part.ArcOfCircle(Part.Circle(V(112.2, -16.4, 0), V(0, 0, 1), 0.5), math.radians(0), math.radians(90)),
], False)
sketch10.addConstraint([
    Sketcher.Constraint("Tangent", 0, 2, 1, 1),
    Sketcher.Constraint("Tangent", 1, 2, 2, 1),
    Sketcher.Constraint("Tangent", 2, 2, 3, 1),
    Sketcher.Constraint("Tangent", 3, 2, 4, 1),
    Sketcher.Constraint("Tangent", 4, 2, 5, 1),
    Sketcher.Constraint("Tangent", 5, 2, 6, 1),
    Sketcher.Constraint("Tangent", 6, 2, 7, 1),
    Sketcher.Constraint("Tangent", 7, 2, 0, 1),
    Sketcher.Constraint("Tangent", 8, 2, 9, 1),
    Sketcher.Constraint("Tangent", 9, 2, 10, 1),
    Sketcher.Constraint("Tangent", 10, 2, 11, 1),
    Sketcher.Constraint("Tangent", 11, 2, 12, 1),
    Sketcher.Constraint("Tangent", 12, 2, 13, 1),
    Sketcher.Constraint("Tangent", 13, 2, 14, 1),
    Sketcher.Constraint("Tangent", 14, 2, 15, 1),
    Sketcher.Constraint("Tangent", 15, 2, 8, 1),
    Sketcher.Constraint("Horizontal", 0),
    Sketcher.Constraint("Vertical", 2),
    Sketcher.Constraint("Horizontal", 4),
    Sketcher.Constraint("Vertical", 6),
    Sketcher.Constraint("Horizontal", 8),
    Sketcher.Constraint("Vertical", 10),
    Sketcher.Constraint("Horizontal", 12),
    Sketcher.Constraint("Vertical", 14),
    Sketcher.Constraint("Equal", 1, 3),
    Sketcher.Constraint("Equal", 3, 5),
    Sketcher.Constraint("Equal", 5, 7),
    Sketcher.Constraint("Equal", 7, 9),
    Sketcher.Constraint("Equal", 9, 11),
    Sketcher.Constraint("Equal", 11, 13),
    Sketcher.Constraint("Equal", 13, 15),
    Sketcher.Constraint("Symmetric", 3, 3, 9, 3, -1),
    Sketcher.Constraint("Symmetric", 7, 3, 13, 3, -1),
    Sketcher.Constraint("Equal", 12, 2),
    Sketcher.Constraint("Radius", 1, Q("0.02 in")),
    Sketcher.Constraint("DistanceX", 0, 2, 0, 1, Q("0.21 in")),
    Sketcher.Constraint("DistanceY", 9, 3, 1, 3, Q("1.5 in")),
    Sketcher.Constraint("DistanceX", -1, 1, 1, 2, Q("4.1875 in")),
])
sketch10.setExpression("Constraints[34]", "Params.sketch10_radius")
sketch10.setExpression("Constraints[35]", "Params.sketch10_width")
pocket6 = body3.newObject("PartDesign::Pocket", "Pocket005")
pocket6.Profile = sketch10
pocket6.Type = "ThroughAll"

doc.recompute()
